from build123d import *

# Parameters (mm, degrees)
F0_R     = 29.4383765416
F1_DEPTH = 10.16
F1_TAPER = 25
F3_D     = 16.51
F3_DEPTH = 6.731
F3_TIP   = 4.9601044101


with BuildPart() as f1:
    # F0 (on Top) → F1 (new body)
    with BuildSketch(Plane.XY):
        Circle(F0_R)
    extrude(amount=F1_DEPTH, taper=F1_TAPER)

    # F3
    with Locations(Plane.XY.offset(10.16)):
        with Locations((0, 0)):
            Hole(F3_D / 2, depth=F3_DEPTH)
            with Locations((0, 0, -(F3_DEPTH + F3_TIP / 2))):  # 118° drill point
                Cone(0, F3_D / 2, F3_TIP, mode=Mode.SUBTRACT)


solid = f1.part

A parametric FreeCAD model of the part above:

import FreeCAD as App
import Part
import Sketcher

V = App.Vector
Q = App.Units.Quantity

doc = App.newDocument("Part")
body = doc.addObject("PartDesign::Body", "Body")

# Sketch on XY plane
sketch1 = body.newObject("Sketcher::SketchObject", "Sketch")
sketch1.AttachmentSupport = (doc.getObject("XY_Plane"), [""])
sketch1.MapMode = "FlatFace"
sketch1.addGeometry(Part.Circle(V(0, 0, 0), V(0, 0, 1), 29), False)
sketch1.addConstraint([
    Sketcher.Constraint("Coincident", 0, 3, -1, 1),
    Sketcher.Constraint("Diameter", 0, Q("58.876753 mm")),
])
pad1 = body.newObject("PartDesign::Pad", "Pad")
pad1.Profile = sketch1
pad1.Length = Q("0.4 in")
pad1.TaperAngle = -25

# Sketch on XY plane
sketch2 = body.newObject("Sketcher::SketchObject", "Sketch001")
sketch2.AttachmentSupport = (doc.getObject("XY_Plane"), [""])
sketch2.MapMode = "FlatFace"
sketch2.AttachmentOffset = App.Placement(V(0, 0, 0.4 * 25.4), App.Rotation())
sketch2.addGeometry(Part.Circle(V(0, 0, 0), V(0, 0, 1), 8), False)
sketch2.addConstraint([
    Sketcher.Constraint("Coincident", 0, 3, -1, 1),
    Sketcher.Constraint("Diameter", 0, Q("0.65 in")),
])
doc.recompute()
hole = body.newObject("PartDesign::Hole", "Hole")
hole.Profile = sketch2
hole.ThreadType = "None"
hole.Diameter = Q("0.65 in")
hole.DepthType = "Dimension"
hole.Depth = Q("0.265 in")
hole.DrillPoint = "Angled"
hole.DrillPointAngle = 118

doc.recompute()
